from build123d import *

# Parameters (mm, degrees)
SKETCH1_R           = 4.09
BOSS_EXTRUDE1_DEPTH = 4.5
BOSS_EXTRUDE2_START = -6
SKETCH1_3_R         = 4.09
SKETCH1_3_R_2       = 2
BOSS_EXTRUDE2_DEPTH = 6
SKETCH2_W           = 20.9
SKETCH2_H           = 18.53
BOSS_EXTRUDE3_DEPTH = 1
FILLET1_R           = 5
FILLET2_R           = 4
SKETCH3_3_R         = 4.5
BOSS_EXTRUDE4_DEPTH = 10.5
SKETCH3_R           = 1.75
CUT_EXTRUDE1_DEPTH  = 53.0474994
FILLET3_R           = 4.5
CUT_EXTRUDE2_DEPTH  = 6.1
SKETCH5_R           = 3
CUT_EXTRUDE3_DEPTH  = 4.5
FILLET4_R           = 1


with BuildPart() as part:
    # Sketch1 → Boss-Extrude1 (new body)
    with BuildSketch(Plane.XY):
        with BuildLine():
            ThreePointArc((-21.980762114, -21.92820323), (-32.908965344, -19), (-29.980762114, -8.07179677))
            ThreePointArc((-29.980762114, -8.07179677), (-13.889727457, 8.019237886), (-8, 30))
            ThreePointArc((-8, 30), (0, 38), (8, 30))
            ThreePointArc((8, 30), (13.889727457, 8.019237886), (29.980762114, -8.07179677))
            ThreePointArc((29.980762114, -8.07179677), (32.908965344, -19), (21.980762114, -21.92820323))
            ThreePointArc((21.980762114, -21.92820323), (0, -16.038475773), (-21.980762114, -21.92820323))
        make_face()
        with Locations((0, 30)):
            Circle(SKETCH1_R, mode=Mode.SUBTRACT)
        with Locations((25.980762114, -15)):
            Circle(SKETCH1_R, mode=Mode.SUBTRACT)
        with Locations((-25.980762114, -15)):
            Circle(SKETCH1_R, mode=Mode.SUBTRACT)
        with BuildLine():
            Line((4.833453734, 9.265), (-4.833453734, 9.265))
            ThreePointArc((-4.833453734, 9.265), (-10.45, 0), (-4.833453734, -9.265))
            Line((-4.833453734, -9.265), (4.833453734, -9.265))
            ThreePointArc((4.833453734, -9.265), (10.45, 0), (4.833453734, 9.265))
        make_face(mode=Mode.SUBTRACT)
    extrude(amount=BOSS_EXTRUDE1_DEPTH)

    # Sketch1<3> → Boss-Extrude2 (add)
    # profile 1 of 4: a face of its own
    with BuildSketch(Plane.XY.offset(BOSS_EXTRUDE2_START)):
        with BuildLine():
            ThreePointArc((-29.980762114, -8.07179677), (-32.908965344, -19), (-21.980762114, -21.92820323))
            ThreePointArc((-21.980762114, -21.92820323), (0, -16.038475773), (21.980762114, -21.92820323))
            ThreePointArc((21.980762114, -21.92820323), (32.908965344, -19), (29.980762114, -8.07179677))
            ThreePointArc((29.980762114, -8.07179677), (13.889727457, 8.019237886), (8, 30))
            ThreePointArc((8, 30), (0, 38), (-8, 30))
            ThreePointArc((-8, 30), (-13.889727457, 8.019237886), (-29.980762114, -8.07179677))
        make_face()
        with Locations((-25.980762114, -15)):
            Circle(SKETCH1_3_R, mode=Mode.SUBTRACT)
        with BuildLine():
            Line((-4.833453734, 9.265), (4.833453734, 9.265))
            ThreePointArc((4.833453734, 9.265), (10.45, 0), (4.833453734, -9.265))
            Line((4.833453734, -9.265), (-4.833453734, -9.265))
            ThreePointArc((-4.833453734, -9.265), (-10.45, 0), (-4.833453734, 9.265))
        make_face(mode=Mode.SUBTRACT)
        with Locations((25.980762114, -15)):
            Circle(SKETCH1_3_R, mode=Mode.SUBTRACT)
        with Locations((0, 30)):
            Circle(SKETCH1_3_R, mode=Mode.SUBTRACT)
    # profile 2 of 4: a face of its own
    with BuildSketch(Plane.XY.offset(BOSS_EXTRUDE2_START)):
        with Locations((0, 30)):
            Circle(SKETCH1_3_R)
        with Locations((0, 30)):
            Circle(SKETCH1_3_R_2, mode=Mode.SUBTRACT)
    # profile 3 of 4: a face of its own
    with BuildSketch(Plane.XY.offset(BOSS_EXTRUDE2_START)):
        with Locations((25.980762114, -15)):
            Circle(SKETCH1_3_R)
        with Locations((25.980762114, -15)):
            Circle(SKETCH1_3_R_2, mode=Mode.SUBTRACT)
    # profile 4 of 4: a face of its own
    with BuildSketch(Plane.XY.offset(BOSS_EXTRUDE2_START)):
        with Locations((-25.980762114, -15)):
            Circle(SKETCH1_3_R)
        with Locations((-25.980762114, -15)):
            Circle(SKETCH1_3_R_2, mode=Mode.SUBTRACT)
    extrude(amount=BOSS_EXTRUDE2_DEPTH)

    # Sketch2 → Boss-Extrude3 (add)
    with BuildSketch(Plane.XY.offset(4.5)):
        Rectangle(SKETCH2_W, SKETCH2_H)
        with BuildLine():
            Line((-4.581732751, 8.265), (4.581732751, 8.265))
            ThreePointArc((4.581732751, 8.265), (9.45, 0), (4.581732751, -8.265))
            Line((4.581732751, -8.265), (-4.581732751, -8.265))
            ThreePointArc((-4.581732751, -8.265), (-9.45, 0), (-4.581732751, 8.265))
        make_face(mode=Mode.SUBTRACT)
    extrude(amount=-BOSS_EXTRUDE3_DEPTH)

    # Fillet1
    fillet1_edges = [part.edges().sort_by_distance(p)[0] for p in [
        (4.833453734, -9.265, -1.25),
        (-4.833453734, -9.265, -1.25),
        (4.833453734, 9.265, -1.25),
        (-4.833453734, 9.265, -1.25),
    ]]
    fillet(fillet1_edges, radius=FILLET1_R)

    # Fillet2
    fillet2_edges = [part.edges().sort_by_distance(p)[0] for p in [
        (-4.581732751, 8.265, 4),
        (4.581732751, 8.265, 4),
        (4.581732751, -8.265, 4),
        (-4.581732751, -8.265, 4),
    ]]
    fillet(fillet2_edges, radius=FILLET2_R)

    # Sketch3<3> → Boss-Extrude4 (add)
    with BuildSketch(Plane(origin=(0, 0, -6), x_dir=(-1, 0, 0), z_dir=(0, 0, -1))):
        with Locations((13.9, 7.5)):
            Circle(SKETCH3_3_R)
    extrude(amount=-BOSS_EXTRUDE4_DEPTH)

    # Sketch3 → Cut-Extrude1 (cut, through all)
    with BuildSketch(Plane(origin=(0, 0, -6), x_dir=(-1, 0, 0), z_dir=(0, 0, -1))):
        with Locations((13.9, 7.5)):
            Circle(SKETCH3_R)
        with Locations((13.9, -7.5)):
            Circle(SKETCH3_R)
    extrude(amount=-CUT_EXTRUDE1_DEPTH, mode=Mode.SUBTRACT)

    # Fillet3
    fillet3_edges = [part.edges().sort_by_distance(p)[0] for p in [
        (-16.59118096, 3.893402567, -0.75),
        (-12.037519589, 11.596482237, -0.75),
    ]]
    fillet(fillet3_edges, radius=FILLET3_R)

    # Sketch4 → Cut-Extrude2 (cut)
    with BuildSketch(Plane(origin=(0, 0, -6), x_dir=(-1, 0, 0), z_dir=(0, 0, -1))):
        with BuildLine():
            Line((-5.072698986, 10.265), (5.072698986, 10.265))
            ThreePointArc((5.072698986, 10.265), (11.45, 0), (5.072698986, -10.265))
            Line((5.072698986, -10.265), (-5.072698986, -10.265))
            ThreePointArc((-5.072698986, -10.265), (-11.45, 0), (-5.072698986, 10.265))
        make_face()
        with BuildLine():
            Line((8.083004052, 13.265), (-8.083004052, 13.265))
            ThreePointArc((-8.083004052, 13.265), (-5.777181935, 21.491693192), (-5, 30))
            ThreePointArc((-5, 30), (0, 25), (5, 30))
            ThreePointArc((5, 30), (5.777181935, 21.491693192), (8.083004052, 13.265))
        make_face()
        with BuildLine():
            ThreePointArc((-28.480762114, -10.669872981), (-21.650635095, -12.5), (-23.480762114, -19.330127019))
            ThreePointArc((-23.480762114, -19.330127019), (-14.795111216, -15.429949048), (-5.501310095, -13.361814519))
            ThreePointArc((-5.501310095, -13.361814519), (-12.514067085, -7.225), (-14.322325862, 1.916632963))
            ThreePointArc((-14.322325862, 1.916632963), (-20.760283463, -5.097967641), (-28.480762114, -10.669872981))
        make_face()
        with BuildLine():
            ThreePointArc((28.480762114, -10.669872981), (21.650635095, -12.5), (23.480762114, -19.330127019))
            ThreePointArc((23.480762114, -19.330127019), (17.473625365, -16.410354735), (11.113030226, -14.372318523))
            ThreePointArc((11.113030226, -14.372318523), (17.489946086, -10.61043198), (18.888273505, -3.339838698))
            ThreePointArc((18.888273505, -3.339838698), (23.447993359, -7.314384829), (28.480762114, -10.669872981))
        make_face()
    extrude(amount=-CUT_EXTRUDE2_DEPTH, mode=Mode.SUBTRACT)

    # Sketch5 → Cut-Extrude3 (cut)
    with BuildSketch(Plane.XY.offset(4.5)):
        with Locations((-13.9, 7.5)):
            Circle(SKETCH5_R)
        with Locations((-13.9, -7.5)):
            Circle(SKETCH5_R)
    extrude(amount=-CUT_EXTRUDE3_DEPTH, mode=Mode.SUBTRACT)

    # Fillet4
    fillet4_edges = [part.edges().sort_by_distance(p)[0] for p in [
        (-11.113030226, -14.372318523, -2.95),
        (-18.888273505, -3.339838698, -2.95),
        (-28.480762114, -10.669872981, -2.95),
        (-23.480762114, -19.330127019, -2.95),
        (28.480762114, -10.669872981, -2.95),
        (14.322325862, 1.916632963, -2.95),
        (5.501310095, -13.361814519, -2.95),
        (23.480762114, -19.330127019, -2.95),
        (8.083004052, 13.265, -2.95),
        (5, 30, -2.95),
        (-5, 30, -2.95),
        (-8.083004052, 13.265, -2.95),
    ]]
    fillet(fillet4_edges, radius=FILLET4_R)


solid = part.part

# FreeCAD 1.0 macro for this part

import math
import FreeCAD as App
import Part
import Sketcher


def edges_at(feature, points):
    """Names of the edges that pass closest to the given points."""
    edges = feature.Shape.Edges
    near = lambda p: min(range(len(edges)), key=lambda i: edges[i].distToShape(Part.Vertex(*p))[0])
    return sorted({f"Edge{near(p) + 1}" for p in points})


def add_polygon(sketch, points):
    """Adds a closed chain of lines whose ends are joined by coincident constraints."""
    first, n = sketch.GeometryCount, len(points)
    for a, b in zip(points, points[1:] + points[:1]):
        sketch.addGeometry(Part.LineSegment(App.Vector(*a, 0), App.Vector(*b, 0)), False)
    for i in range(n):
        sketch.addConstraint(Sketcher.Constraint("Coincident", first + i, 2, first + (i + 1) % n, 1))

doc = App.newDocument("Part")
params = doc.addObject("Spreadsheet::Sheet", "Params")
for row, (alias, value) in enumerate([
    ("sketch1_radius", "8 mm"),
    ("sketch1_diameter", "8.18 mm"),
    ("sketch1_radius2", "10.45 mm"),
    ("pad1_length", "4.5 mm"),
    ("sketch2_diameter", "4 mm"),
    ("sketch2_radius", "8 mm"),
    ("sketch2_radius2", "10.45 mm"),
    ("pad2_length", "6 mm"),
    ("sketch3_radius", "9.45 mm"),
    ("sketch3_width", "20.9 mm"),
    ("sketch3_height", "18.53 mm"),
    ("pad3_length", "1 mm"),
    ("fillet_radius", "5 mm"),
    ("fillet2_radius", "4 mm"),
    ("sketch4_diameter", "9 mm"),
    ("pad4_length", "10.5 mm"),
    ("sketch5_diameter", "3.5 mm"),
    ("fillet3_radius", "4.5 mm"),
    ("sketch6_radius", "5 mm"),
    ("sketch6_radius2", "9 mm"),
    ("sketch6_radius3", "11.45 mm"),
    ("sketch6_radius4", "14.45 mm"),
    ("pocket2_length", "6.1 mm"),
    ("sketch7_diameter", "6 mm"),
    ("pocket3_length", "4.5 mm"),
    ("fillet4_radius", "1 mm"),
], start=1):
    params.set(f"A{row}", alias)
    params.set(f"B{row}", "=" + value)
    params.setAlias(f"B{row}", alias)

body = doc.addObject("PartDesign::Body", "Body")

sketch1 = doc.addObject("Sketcher::SketchObject", "Sketch")
body.addObject(sketch1)
sketch1.AttachmentSupport = (doc.XY_Plane, [""])
sketch1.MapMode = "FlatFace"
sketch1.addGeometry([
    Part.ArcOfCircle(Part.Circle(App.Vector(-26, -15, 0), App.Vector(0, 0, 1), 8), math.radians(120), math.radians(300)),
    Part.ArcOfCircle(Part.Circle(App.Vector(0, -60, 0), App.Vector(0, 0, 1), 44), math.radians(60), math.radians(120)),
    Part.ArcOfCircle(Part.Circle(App.Vector(26, -15, 0), App.Vector(0, 0, 1), 8), math.radians(-120), math.radians(60)),
    Part.ArcOfCircle(Part.Circle(App.Vector(52, 30, 0), App.Vector(0, 0, 1), 44), math.radians(180), math.radians(240)),
    Part.ArcOfCircle(Part.Circle(App.Vector(0, 30, 0), App.Vector(0, 0, 1), 8), math.radians(0), math.radians(180)),
    Part.ArcOfCircle(Part.Circle(App.Vector(-52, 30, 0), App.Vector(0, 0, 1), 44), math.radians(-60), math.radians(0)),
    Part.Circle(App.Vector(26, -15, 0), App.Vector(0, 0, 1), 4.1),
    Part.Circle(App.Vector(-26, -15, 0), App.Vector(0, 0, 1), 4.1),
    Part.ArcOfCircle(Part.Circle(App.Vector(0, 0, 0), App.Vector(0, 0, 1), 10.4), math.radians(-62), math.radians(62)),
    Part.LineSegment(App.Vector(4.8, -9.3, 0), App.Vector(-4.8, -9.3, 0)),
    Part.ArcOfCircle(Part.Circle(App.Vector(0, 0, 0), App.Vector(0, 0, 1), 10.4), math.radians(118), math.radians(242)),
    Part.LineSegment(App.Vector(-4.8, 9.3, 0), App.Vector(4.8, 9.3, 0)),
    Part.Circle(App.Vector(0, 30, 0), App.Vector(0, 0, 1), 4.1),
], False)
sketch1.addConstraint([
    Sketcher.Constraint("Tangent", 0, 2, 1, 2),
    Sketcher.Constraint("Tangent", 1, 1, 2, 1),
    Sketcher.Constraint("Tangent", 2, 2, 3, 2),
    Sketcher.Constraint("Tangent", 3, 1, 4, 1),
    Sketcher.Constraint("Tangent", 4, 2, 5, 2),
    Sketcher.Constraint("Tangent", 5, 1, 0, 1),
    Sketcher.Constraint("Coincident", 8, 1, 9, 1),
    Sketcher.Constraint("Coincident", 9, 2, 10, 2),
    Sketcher.Constraint("Coincident", 10, 1, 11, 1),
    Sketcher.Constraint("Coincident", 11, 2, 8, 2),
    Sketcher.Constraint("Horizontal", 9),
    Sketcher.Constraint("Horizontal", 11),
    Sketcher.Constraint("Coincident", 8, 3, -1, 1),
    Sketcher.Constraint("Coincident", 10, 3, -1, 1),
    Sketcher.Constraint("Coincident", 6, 3, 2, 3),
    Sketcher.Constraint("Coincident", 7, 3, 0, 3),
    Sketcher.Constraint("Coincident", 12, 3, 4, 3),
    Sketcher.Constraint("Equal", 0, 2),
    Sketcher.Constraint("Equal", 1, 3),
    Sketcher.Constraint("Equal", 2, 4),
    Sketcher.Constraint("Equal", 3, 5),
    Sketcher.Constraint("Equal", 6, 7),
    Sketcher.Constraint("Equal", 8, 10),
    Sketcher.Constraint("Equal", 7, 12),
    Sketcher.Constraint("Symmetric", 0, 3, 2, 3, -2),
    Sketcher.Constraint("PointOnObject", 4, 3, -2),
    Sketcher.Constraint("Horizontal", 3, 3, 4, 3),
    Sketcher.Constraint("Vertical", 9, 2, 10, 1),
    Sketcher.Constraint("Radius", 0, 8.0),
    Sketcher.Constraint("Diameter", 6, 8.18),
    Sketcher.Constraint("Radius", 8, 10.45),
    Sketcher.Constraint("DistanceY", 0, 3, -1, 1, 15.0),
    Sketcher.Constraint("DistanceY", 1, 3, -1, 1, 60.0),
    Sketcher.Constraint("DistanceY", -1, 1, 3, 3, 30.0),
    Sketcher.Constraint("DistanceY", 9, 2, 10, 1, 18.53),
])
sketch1.setExpression("Constraints[28]", "Params.sketch1_radius")
sketch1.setExpression("Constraints[29]", "Params.sketch1_diameter")
sketch1.setExpression("Constraints[30]", "Params.sketch1_radius2")
pad1 = doc.addObject("PartDesign::Pad", "Pad")
body.addObject(pad1)
pad1.Profile = sketch1
pad1.setExpression("Length", "Params.pad1_length")

sketch2 = doc.addObject("Sketcher::SketchObject", "Sketch001")
body.addObject(sketch2)
sketch2.AttachmentSupport = (doc.XY_Plane, [""])
sketch2.MapMode = "FlatFace"
sketch2.AttachmentOffset = App.Placement(App.Vector(0, 0, -6), App.Rotation())
sketch2.addGeometry([
    Part.ArcOfCircle(Part.Circle(App.Vector(-26, -15, 0), App.Vector(0, 0, 1), 8), math.radians(120), math.radians(300)),
    Part.ArcOfCircle(Part.Circle(App.Vector(0, -60, 0), App.Vector(0, 0, 1), 44), math.radians(60), math.radians(120)),
    Part.ArcOfCircle(Part.Circle(App.Vector(26, -15, 0), App.Vector(0, 0, 1), 8), math.radians(-120), math.radians(60)),
    Part.ArcOfCircle(Part.Circle(App.Vector(52, 30, 0), App.Vector(0, 0, 1), 44), math.radians(180), math.radians(240)),
    Part.ArcOfCircle(Part.Circle(App.Vector(0, 30, 0), App.Vector(0, 0, 1), 8), math.radians(0), math.radians(180)),
    Part.ArcOfCircle(Part.Circle(App.Vector(-52, 30, 0), App.Vector(0, 0, 1), 44), math.radians(-60), math.radians(0)),
    Part.ArcOfCircle(Part.Circle(App.Vector(0, 0, 0), App.Vector(0, 0, 1), 10.4), math.radians(118), math.radians(242)),
    Part.LineSegment(App.Vector(-4.8, 9.3, 0), App.Vector(4.8, 9.3, 0)),
    Part.ArcOfCircle(Part.Circle(App.Vector(0, 0, 0), App.Vector(0, 0, 1), 10.4), math.radians(-62), math.radians(62)),
    Part.LineSegment(App.Vector(4.8, -9.3, 0), App.Vector(-4.8, -9.3, 0)),
    Part.Circle(App.Vector(-26, -15, 0), App.Vector(0, 0, 1), 2),
    Part.Circle(App.Vector(26, -15, 0), App.Vector(0, 0, 1), 2),
    Part.Circle(App.Vector(0, 30, 0), App.Vector(0, 0, 1), 2),
], False)
sketch2.addConstraint([
    Sketcher.Constraint("Tangent", 0, 2, 1, 2),
    Sketcher.Constraint("Tangent", 1, 1, 2, 1),
    Sketcher.Constraint("Tangent", 2, 2, 3, 2),
    Sketcher.Constraint("Tangent", 3, 1, 4, 1),
    Sketcher.Constraint("Tangent", 4, 2, 5, 2),
    Sketcher.Constraint("Tangent", 5, 1, 0, 1),
    Sketcher.Constraint("Coincident", 6, 1, 7, 1),
    Sketcher.Constraint("Coincident", 7, 2, 8, 2),
    Sketcher.Constraint("Coincident", 8, 1, 9, 1),
    Sketcher.Constraint("Coincident", 9, 2, 6, 2),
    Sketcher.Constraint("Horizontal", 7),
    Sketcher.Constraint("Horizontal", 9),
    Sketcher.Constraint("Coincident", 6, 3, -1, 1),
    Sketcher.Constraint("Coincident", 8, 3, -1, 1),
    Sketcher.Constraint("Coincident", 10, 3, 0, 3),
    Sketcher.Constraint("Coincident", 11, 3, 2, 3),
    Sketcher.Constraint("Coincident", 12, 3, 4, 3),
    Sketcher.Constraint("Equal", 0, 2),
    Sketcher.Constraint("Equal", 1, 3),
    Sketcher.Constraint("Equal", 2, 4),
    Sketcher.Constraint("Equal", 3, 5),
    Sketcher.Constraint("Equal", 6, 8),
    Sketcher.Constraint("Equal", 10, 11),
    Sketcher.Constraint("Equal", 11, 12),
    Sketcher.Constraint("Symmetric", 0, 3, 2, 3, -2),
    Sketcher.Constraint("PointOnObject", 4, 3, -2),
    Sketcher.Constraint("Horizontal", 3, 3, 4, 3),
    Sketcher.Constraint("Vertical", 7, 2, 8, 1),
    Sketcher.Constraint("Diameter", 10, 4.0),
    Sketcher.Constraint("Radius", 0, 8.0),
    Sketcher.Constraint("Radius", 6, 10.45),
    Sketcher.Constraint("DistanceY", 0, 3, -1, 1, 15.0),
    Sketcher.Constraint("DistanceY", 1, 3, -1, 1, 60.0),
    Sketcher.Constraint("DistanceY", -1, 1, 3, 3, 30.0),
    Sketcher.Constraint("DistanceY", 8, 1, 7, 2, 18.53),
])
sketch2.setExpression("Constraints[28]", "Params.sketch2_diameter")
sketch2.setExpression("Constraints[29]", "Params.sketch2_radius")
sketch2.setExpression("Constraints[30]", "Params.sketch2_radius2")
pad2 = doc.addObject("PartDesign::Pad", "Pad001")
body.addObject(pad2)
pad2.Profile = sketch2
pad2.setExpression("Length", "Params.pad2_length")

sketch3 = doc.addObject("Sketcher::SketchObject", "Sketch002")
body.addObject(sketch3)
sketch3.AttachmentSupport = (doc.XY_Plane, [""])
sketch3.MapMode = "FlatFace"
sketch3.AttachmentOffset = App.Placement(App.Vector(0, 0, 4.5), App.Rotation())
add_polygon(sketch3, [(-10, 9), (-10, -9), (10, -9), (10, 9)])
sketch3.addGeometry(Part.ArcOfCircle(Part.Circle(App.Vector(0, 0, 0), App.Vector(0, 0, 1), 9), math.radians(119), math.radians(241)), False)
sketch3.addGeometry(Part.LineSegment(App.Vector(-5, 8, 0), App.Vector(5, 8, 0)), False)
sketch3.addGeometry(Part.ArcOfCircle(Part.Circle(App.Vector(0, 0, 0), App.Vector(0, 0, 1), 9), math.radians(-61), math.radians(61)), False)
sketch3.addGeometry(Part.LineSegment(App.Vector(5, -8, 0), App.Vector(-5, -8, 0)), False)
sketch3.addConstraint([
    Sketcher.Constraint("Coincident", 4, 1, 5, 1),
    Sketcher.Constraint("Coincident", 5, 2, 6, 2),
    Sketcher.Constraint("Coincident", 6, 1, 7, 1),
    Sketcher.Constraint("Coincident", 7, 2, 4, 2),
    Sketcher.Constraint("Vertical", 0),
    Sketcher.Constraint("Horizontal", 1),
    Sketcher.Constraint("Vertical", 2),
    Sketcher.Constraint("Horizontal", 3),
    Sketcher.Constraint("Horizontal", 5),
    Sketcher.Constraint("Horizontal", 7),
    Sketcher.Constraint("Coincident", 4, 3, -1, 1),
    Sketcher.Constraint("Coincident", 6, 3, -1, 1),
    Sketcher.Constraint("Equal", 4, 6),
    Sketcher.Constraint("Symmetric", 0, 2, 2, 2, -1, 1),
    Sketcher.Constraint("Vertical", 5, 2, 6, 1),
    Sketcher.Constraint("Radius", 4, 9.45),
    Sketcher.Constraint("DistanceX", 1, 1, 1, 2, 20.9),
    Sketcher.Constraint("DistanceY", 4, 1, 3, 2, 1.0),
    Sketcher.Constraint("DistanceY", 0, 2, 0, 1, 18.53),
])
sketch3.setExpression("Constraints[19]", "Params.sketch3_radius")
sketch3.setExpression("Constraints[20]", "Params.sketch3_width")
sketch3.setExpression("Constraints[22]", "Params.sketch3_height")
pad3 = doc.addObject("PartDesign::Pad", "Pad002")
body.addObject(pad3)
pad3.Profile = sketch3
pad3.setExpression("Length", "Params.pad3_length")
pad3.Reversed = True
doc.recompute()

fillet = doc.addObject("PartDesign::Fillet", "Fillet")
body.addObject(fillet)
fillet.Base = (pad3, edges_at(pad3, [
    (4.833, -9.265, -1.25),
    (-4.833, -9.265, -1.25),
    (4.833, 9.265, -1.25),
    (-4.833, 9.265, -1.25),
]))
fillet.setExpression("Radius", "Params.fillet_radius")
doc.recompute()

fillet2 = doc.addObject("PartDesign::Fillet", "Fillet001")
body.addObject(fillet2)
fillet2.Base = (fillet, edges_at(fillet, [
    (-4.582, 8.265, 4),
    (4.582, 8.265, 4),
    (4.582, -8.265, 4),
    (-4.582, -8.265, 4),
]))
fillet2.setExpression("Radius", "Params.fillet2_radius")

sketch4 = doc.addObject("Sketcher::SketchObject", "Sketch003")
body.addObject(sketch4)
sketch4.AttachmentSupport = (doc.XY_Plane, [""])
sketch4.MapMode = "FlatFace"
sketch4.AttachmentOffset = App.Placement(App.Vector(0, 0, -6), App.Rotation())
sketch4.addGeometry(Part.Circle(App.Vector(-13.9, 7.5, 0), App.Vector(0, 0, 1), 4.5), False)
sketch4.addConstraint([
    Sketcher.Constraint("Diameter", 0, 9.0),
    Sketcher.Constraint("DistanceX", 0, 3, -1, 1, 13.9),
    Sketcher.Constraint("DistanceY", -1, 1, 0, 3, 7.5),
])
sketch4.setExpression("Constraints[0]", "Params.sketch4_diameter")
pad4 = doc.addObject("PartDesign::Pad", "Pad003")
body.addObject(pad4)
pad4.Profile = sketch4
pad4.setExpression("Length", "Params.pad4_length")

sketch5 = doc.addObject("Sketcher::SketchObject", "Sketch004")
body.addObject(sketch5)
sketch5.AttachmentSupport = (doc.XY_Plane, [""])
sketch5.MapMode = "FlatFace"
sketch5.AttachmentOffset = App.Placement(App.Vector(0, 0, -6), App.Rotation())
sketch5.addGeometry([
    Part.Circle(App.Vector(-13.9, 7.5, 0), App.Vector(0, 0, 1), 1.8),
    Part.Circle(App.Vector(-13.9, -7.5, 0), App.Vector(0, 0, 1), 1.8),
], False)
sketch5.addConstraint([
    Sketcher.Constraint("Equal", 0, 1),
    Sketcher.Constraint("Symmetric", 0, 3, 1, 3, -1),
    Sketcher.Constraint("Diameter", 0, 3.5),
    Sketcher.Constraint("DistanceY", 1, 3, 0, 3, 15.0),
    Sketcher.Constraint("DistanceX", 0, 3, -1, 1, 13.9),
])
sketch5.setExpression("Constraints[2]", "Params.sketch5_diameter")
pocket1 = doc.addObject("PartDesign::Pocket", "Pocket")
body.addObject(pocket1)
pocket1.Profile = sketch5
pocket1.Type = "ThroughAll"
pocket1.Reversed = True
doc.recompute()

fillet3 = doc.addObject("PartDesign::Fillet", "Fillet002")
body.addObject(fillet3)
fillet3.Base = (pocket1, edges_at(pocket1, [(-16.591, 3.893, -0.75), (-12.038, 11.596, -0.75)]))
fillet3.setExpression("Radius", "Params.fillet3_radius")

sketch6 = doc.addObject("Sketcher::SketchObject", "Sketch005")
body.addObject(sketch6)
sketch6.AttachmentSupport = (doc.XY_Plane, [""])
sketch6.MapMode = "FlatFace"
sketch6.AttachmentOffset = App.Placement(App.Vector(0, 0, -6), App.Rotation())
sketch6.addGeometry([
    Part.LineSegment(App.Vector(-5, 10, 0), App.Vector(5, 10, 0)),
    Part.ArcOfCircle(Part.Circle(App.Vector(0, 0, 0), App.Vector(0, 0, 1), 11), math.radians(-64), math.radians(64)),
    Part.LineSegment(App.Vector(5, -10, 0), App.Vector(-5, -10, 0)),
    Part.ArcOfCircle(Part.Circle(App.Vector(0, 0, 0), App.Vector(0, 0, 1), 11), math.radians(116), math.radians(244)),
    Part.LineSegment(App.Vector(8, 13, 0), App.Vector(-8, 13, 0)),
    Part.ArcOfCircle(Part.Circle(App.Vector(-52, 30, 0), App.Vector(0, 0, 1), 47), math.radians(-21), math.radians(0)),
    Part.ArcOfCircle(Part.Circle(App.Vector(0, 30, 0), App.Vector(0, 0, 1), 5), math.radians(180), math.radians(360)),
    Part.ArcOfCircle(Part.Circle(App.Vector(52, 30, 0), App.Vector(0, 0, 1), 47), math.radians(-180), math.radians(-159)),
    Part.ArcOfCircle(Part.Circle(App.Vector(26, -15, 0), App.Vector(0, 0, 1), 5), math.radians(60), math.radians(240)),
    Part.ArcOfCircle(Part.Circle(App.Vector(0, -60, 0), App.Vector(0, 0, 1), 47), math.radians(60), math.radians(83)),
    Part.ArcOfCircle(Part.Circle(App.Vector(0, 0, 0), App.Vector(0, 0, 1), 14), math.radians(-68), math.radians(8)),
    Part.ArcOfCircle(Part.Circle(App.Vector(52, 30, 0), App.Vector(0, 0, 1), 47), math.radians(-143), math.radians(-120)),
    Part.ArcOfCircle(Part.Circle(App.Vector(-26, -15, 0), App.Vector(0, 0, 1), 5), math.radians(-60), math.radians(120)),
    Part.ArcOfCircle(Part.Circle(App.Vector(-52, 30, 0), App.Vector(0, 0, 1), 47), math.radians(-60), math.radians(-45.23)),
    Part.ArcOfCircle(Part.Circle(App.Vector(-10, -5, 0), App.Vector(0, 0, 1), 9), math.radians(167), math.radians(264)),
    Part.ArcOfCircle(Part.Circle(App.Vector(0, -60, 0), App.Vector(0, 0, 1), 47), math.radians(103.69), math.radians(120)),
], False)
sketch6.addConstraint([
    Sketcher.Constraint("Coincident", 0, 2, 1, 2),
    Sketcher.Constraint("Coincident", 1, 1, 2, 1),
    Sketcher.Constraint("Coincident", 2, 2, 3, 2),
    Sketcher.Constraint("Coincident", 3, 1, 0, 1),
    Sketcher.Constraint("Coincident", 4, 2, 5, 1),
    Sketcher.Constraint("Tangent", 5, 2, 6, 1),
    Sketcher.Constraint("Tangent", 6, 2, 7, 1),
    Sketcher.Constraint("Coincident", 7, 2, 4, 1),
    Sketcher.Constraint("Tangent", 8, 2, 9, 1),
    Sketcher.Constraint("Coincident", 9, 2, 10, 1),
    Sketcher.Constraint("Coincident", 10, 2, 11, 1),
    Sketcher.Constraint("Tangent", 11, 2, 8, 1),
    Sketcher.Constraint("Tangent", 12, 2, 13, 1),
    Sketcher.Constraint("Coincident", 13, 2, 14, 1),
    Sketcher.Constraint("Coincident", 14, 2, 15, 1),
    Sketcher.Constraint("Tangent", 15, 2, 12, 1),
    Sketcher.Constraint("Horizontal", 0),
    Sketcher.Constraint("Horizontal", 2),
    Sketcher.Constraint("Horizontal", 4),
    Sketcher.Constraint("Coincident", 1, 3, -1, 1),
    Sketcher.Constraint("Coincident", 3, 3, -1, 1),
    Sketcher.Constraint("Coincident", 10, 3, -1, 1),
    Sketcher.Constraint("Coincident", 11, 3, 7, 3),
    Sketcher.Constraint("Coincident", 13, 3, 5, 3),
    Sketcher.Constraint("Coincident", 15, 3, 9, 3),
    Sketcher.Constraint("Equal", 1, 3),
    Sketcher.Constraint("Equal", 5, 7),
    Sketcher.Constraint("Equal", 6, 8),
    Sketcher.Constraint("Equal", 7, 9),
    Sketcher.Constraint("Equal", 9, 11),
    Sketcher.Constraint("Equal", 8, 12),
    Sketcher.Constraint("Equal", 11, 13),
    Sketcher.Constraint("Equal", 13, 15),
    Sketcher.Constraint("Symmetric", 5, 3, 7, 3, -2),
    Sketcher.Constraint("Horizontal", 5, 3, 6, 3),
    Sketcher.Constraint("Horizontal", 8, 3, 12, 3),
    Sketcher.Constraint("Vertical", 0, 2, 1, 1),
    Sketcher.Constraint("Radius", 6, 5.0),
    Sketcher.Constraint("Radius", 14, 9.0),
    Sketcher.Constraint("Radius", 1, 11.45),
    Sketcher.Constraint("Radius", 10, 14.45),
    Sketcher.Constraint("DistanceY", -1, 1, 5, 3, 30.0),
    Sketcher.Constraint("DistanceY", 8, 3, -1, 1, 15.0),
    Sketcher.Constraint("DistanceY", 9, 3, -1, 1, 60.0),
    Sketcher.Constraint("DistanceY", 3, 1, 4, 2, 3.0),
    Sketcher.Constraint("DistanceY", 1, 1, 0, 2, 20.53),
    Sketcher.Constraint("DistanceY", 14, 3, -1, 1, 5.425799),
    Sketcher.Constraint("DistanceY", 13, 2, -1, 1, 3.339839),
])
sketch6.setExpression("Constraints[37]", "Params.sketch6_radius")
sketch6.setExpression("Constraints[38]", "Params.sketch6_radius2")
sketch6.setExpression("Constraints[39]", "Params.sketch6_radius3")
sketch6.setExpression("Constraints[40]", "Params.sketch6_radius4")
pocket2 = doc.addObject("PartDesign::Pocket", "Pocket001")
body.addObject(pocket2)
pocket2.Profile = sketch6
pocket2.setExpression("Length", "Params.pocket2_length")
pocket2.Reversed = True

sketch7 = doc.addObject("Sketcher::SketchObject", "Sketch006")
body.addObject(sketch7)
sketch7.AttachmentSupport = (doc.XY_Plane, [""])
sketch7.MapMode = "FlatFace"
sketch7.AttachmentOffset = App.Placement(App.Vector(0, 0, 4.5), App.Rotation())
sketch7.addGeometry([
    Part.Circle(App.Vector(-13.9, 7.5, 0), App.Vector(0, 0, 1), 3),
    Part.Circle(App.Vector(-13.9, -7.5, 0), App.Vector(0, 0, 1), 3),
], False)
sketch7.addConstraint([
    Sketcher.Constraint("Equal", 0, 1),
    Sketcher.Constraint("Symmetric", 0, 3, 1, 3, -1),
    Sketcher.Constraint("Diameter", 0, 6.0),
    Sketcher.Constraint("DistanceY", 1, 3, 0, 3, 15.0),
    Sketcher.Constraint("DistanceX", 0, 3, -1, 1, 13.9),
])
sketch7.setExpression("Constraints[2]", "Params.sketch7_diameter")
pocket3 = doc.addObject("PartDesign::Pocket", "Pocket002")
body.addObject(pocket3)
pocket3.Profile = sketch7
pocket3.setExpression("Length", "Params.pocket3_length")
doc.recompute()

fillet4 = doc.addObject("PartDesign::Fillet", "Fillet003")
body.addObject(fillet4)
fillet4.Base = (pocket3, edges_at(pocket3, [
    (-11.113, -14.372, -2.95),
    (-18.888, -3.34, -2.95),
    (-28.481, -10.67, -2.95),
    (-23.481, -19.33, -2.95),
    (28.481, -10.67, -2.95),
    (14.322, 1.917, -2.95),
    (5.501, -13.362, -2.95),
    (23.481, -19.33, -2.95),
    (8.083, 13.265, -2.95),
    (5, 30, -2.95),
    (-5, 30, -2.95),
    (-8.083, 13.265, -2.95),
]))
fillet4.setExpression("Radius", "Params.fillet4_radius")

doc.recompute()
